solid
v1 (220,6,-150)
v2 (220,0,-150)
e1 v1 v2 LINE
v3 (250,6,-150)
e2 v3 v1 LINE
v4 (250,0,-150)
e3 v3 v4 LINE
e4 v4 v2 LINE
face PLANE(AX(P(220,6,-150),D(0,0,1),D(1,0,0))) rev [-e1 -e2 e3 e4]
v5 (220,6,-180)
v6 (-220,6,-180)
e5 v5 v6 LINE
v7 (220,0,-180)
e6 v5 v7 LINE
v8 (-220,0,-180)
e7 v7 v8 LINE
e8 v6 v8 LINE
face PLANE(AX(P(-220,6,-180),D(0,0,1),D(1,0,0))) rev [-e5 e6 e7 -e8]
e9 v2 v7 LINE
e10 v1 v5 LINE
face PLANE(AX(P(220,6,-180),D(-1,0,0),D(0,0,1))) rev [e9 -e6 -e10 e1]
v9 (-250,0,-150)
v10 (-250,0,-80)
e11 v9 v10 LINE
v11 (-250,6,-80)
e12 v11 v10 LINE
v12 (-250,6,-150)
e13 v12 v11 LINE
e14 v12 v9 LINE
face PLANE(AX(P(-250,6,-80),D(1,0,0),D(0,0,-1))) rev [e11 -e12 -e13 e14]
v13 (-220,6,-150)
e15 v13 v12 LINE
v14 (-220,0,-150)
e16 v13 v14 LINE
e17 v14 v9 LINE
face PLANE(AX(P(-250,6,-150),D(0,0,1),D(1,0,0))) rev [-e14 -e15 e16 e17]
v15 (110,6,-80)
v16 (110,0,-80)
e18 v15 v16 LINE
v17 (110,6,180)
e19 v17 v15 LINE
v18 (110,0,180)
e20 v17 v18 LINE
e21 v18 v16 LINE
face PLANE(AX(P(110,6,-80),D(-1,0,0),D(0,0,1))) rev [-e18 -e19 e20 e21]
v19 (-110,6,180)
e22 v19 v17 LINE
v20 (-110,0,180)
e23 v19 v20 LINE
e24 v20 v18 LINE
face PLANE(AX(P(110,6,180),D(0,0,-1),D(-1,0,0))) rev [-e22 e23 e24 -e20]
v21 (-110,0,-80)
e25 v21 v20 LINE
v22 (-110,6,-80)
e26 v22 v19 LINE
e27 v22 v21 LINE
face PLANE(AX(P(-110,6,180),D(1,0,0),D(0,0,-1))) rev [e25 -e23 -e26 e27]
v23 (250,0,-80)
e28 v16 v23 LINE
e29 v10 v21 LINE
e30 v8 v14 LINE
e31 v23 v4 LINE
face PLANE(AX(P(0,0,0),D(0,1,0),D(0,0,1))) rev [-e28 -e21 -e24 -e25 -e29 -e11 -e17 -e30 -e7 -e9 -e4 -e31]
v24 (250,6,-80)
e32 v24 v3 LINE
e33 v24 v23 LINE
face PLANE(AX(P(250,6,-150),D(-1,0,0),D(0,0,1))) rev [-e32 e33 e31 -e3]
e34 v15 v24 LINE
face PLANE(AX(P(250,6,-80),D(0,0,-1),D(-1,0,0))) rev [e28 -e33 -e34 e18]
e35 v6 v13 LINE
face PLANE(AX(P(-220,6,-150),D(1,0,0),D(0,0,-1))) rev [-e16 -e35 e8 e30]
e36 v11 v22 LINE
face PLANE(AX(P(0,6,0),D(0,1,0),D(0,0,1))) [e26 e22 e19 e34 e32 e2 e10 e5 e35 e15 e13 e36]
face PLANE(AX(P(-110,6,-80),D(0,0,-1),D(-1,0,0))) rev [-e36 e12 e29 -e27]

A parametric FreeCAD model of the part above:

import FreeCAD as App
import Part
import Sketcher
from FreeCAD import Vector
Q = App.Units.Quantity

doc = App.newDocument("Part")
body = doc.addObject("PartDesign::Body", "Body")

# Sketch on XZ plane
sketch1 = body.newObject("Sketcher::SketchObject", "Sketch")
sketch1.AttachmentSupport = (doc.getObject("XZ_Plane"), [""])
sketch1.MapMode = "FlatFace"
sketch1.addGeometry(Part.LineSegment(Vector(-250, -150, 0), Vector(-250, -80, 0)), False)
sketch1.addGeometry(Part.LineSegment(Vector(-250, -80, 0), Vector(-110, -80, 0)), False)
sketch1.addGeometry(Part.LineSegment(Vector(-110, -80, 0), Vector(-110, 180, 0)), False)
sketch1.addGeometry(Part.LineSegment(Vector(-110, 180, 0), Vector(110, 180, 0)), False)
sketch1.addGeometry(Part.LineSegment(Vector(110, 180, 0), Vector(110, -80, 0)), False)
sketch1.addGeometry(Part.LineSegment(Vector(110, -80, 0), Vector(250, -80, 0)), False)
sketch1.addGeometry(Part.LineSegment(Vector(250, -80, 0), Vector(250, -150, 0)), False)
sketch1.addGeometry(Part.LineSegment(Vector(250, -150, 0), Vector(220, -150, 0)), False)
sketch1.addGeometry(Part.LineSegment(Vector(220, -150, 0), Vector(220, -180, 0)), False)
sketch1.addGeometry(Part.LineSegment(Vector(220, -180, 0), Vector(-220, -180, 0)), False)
sketch1.addGeometry(Part.LineSegment(Vector(-220, -180, 0), Vector(-220, -150, 0)), False)
sketch1.addGeometry(Part.LineSegment(Vector(-220, -150, 0), Vector(-250, -150, 0)), False)
sketch1.addConstraint(Sketcher.Constraint("Coincident", 0, 2, 1, 1))
sketch1.addConstraint(Sketcher.Constraint("Coincident", 1, 2, 2, 1))
sketch1.addConstraint(Sketcher.Constraint("Coincident", 2, 2, 3, 1))
sketch1.addConstraint(Sketcher.Constraint("Coincident", 3, 2, 4, 1))
sketch1.addConstraint(Sketcher.Constraint("Coincident", 4, 2, 5, 1))
sketch1.addConstraint(Sketcher.Constraint("Coincident", 5, 2, 6, 1))
sketch1.addConstraint(Sketcher.Constraint("Coincident", 6, 2, 7, 1))
sketch1.addConstraint(Sketcher.Constraint("Coincident", 7, 2, 8, 1))
sketch1.addConstraint(Sketcher.Constraint("Coincident", 8, 2, 9, 1))
sketch1.addConstraint(Sketcher.Constraint("Coincident", 9, 2, 10, 1))
sketch1.addConstraint(Sketcher.Constraint("Coincident", 10, 2, 11, 1))
sketch1.addConstraint(Sketcher.Constraint("Coincident", 11, 2, 0, 1))
sketch1.addConstraint(Sketcher.Constraint("Vertical", 0))
sketch1.addConstraint(Sketcher.Constraint("Horizontal", 1))
sketch1.addConstraint(Sketcher.Constraint("Vertical", 2))
sketch1.addConstraint(Sketcher.Constraint("Horizontal", 3))
sketch1.addConstraint(Sketcher.Constraint("Vertical", 4))
sketch1.addConstraint(Sketcher.Constraint("Horizontal", 5))
sketch1.addConstraint(Sketcher.Constraint("Vertical", 6))
sketch1.addConstraint(Sketcher.Constraint("Horizontal", 7))
sketch1.addConstraint(Sketcher.Constraint("Vertical", 8))
sketch1.addConstraint(Sketcher.Constraint("Horizontal", 9))
sketch1.addConstraint(Sketcher.Constraint("Vertical", 10))
sketch1.addConstraint(Sketcher.Constraint("Horizontal", 11))
sketch1.addConstraint(Sketcher.Constraint("Symmetric", 1, 2, 4, 2, -2))
sketch1.addConstraint(Sketcher.Constraint("Symmetric", 7, 2, 10, 2, -2))
sketch1.addConstraint(Sketcher.Constraint("Equal", 1, 5))
sketch1.addConstraint(Sketcher.Constraint("Equal", 11, 8))
sketch1.addConstraint(Sketcher.Constraint("DistanceX", 1, 1, 1, 2, Q("140 mm")))
sketch1.addConstraint(Sketcher.Constraint("DistanceX", 3, 1, 3, 2, Q("220 mm")))
sketch1.addConstraint(Sketcher.Constraint("DistanceX", 7, 2, 7, 1, Q("30 mm")))
sketch1.addConstraint(Sketcher.Constraint("DistanceY", 0, 1, 0, 2, Q("70 mm")))
sketch1.addConstraint(Sketcher.Constraint("DistanceY", 2, 1, 2, 2, Q("260 mm")))
sketch1.addConstraint(Sketcher.Constraint("DistanceY", 0, 2, -1, 1, Q("80 mm")))
pad1 = body.newObject("PartDesign::Pad", "Pad")
pad1.Profile = sketch1
pad1.Length = 6
pad1.Reversed = True

doc.recompute()
